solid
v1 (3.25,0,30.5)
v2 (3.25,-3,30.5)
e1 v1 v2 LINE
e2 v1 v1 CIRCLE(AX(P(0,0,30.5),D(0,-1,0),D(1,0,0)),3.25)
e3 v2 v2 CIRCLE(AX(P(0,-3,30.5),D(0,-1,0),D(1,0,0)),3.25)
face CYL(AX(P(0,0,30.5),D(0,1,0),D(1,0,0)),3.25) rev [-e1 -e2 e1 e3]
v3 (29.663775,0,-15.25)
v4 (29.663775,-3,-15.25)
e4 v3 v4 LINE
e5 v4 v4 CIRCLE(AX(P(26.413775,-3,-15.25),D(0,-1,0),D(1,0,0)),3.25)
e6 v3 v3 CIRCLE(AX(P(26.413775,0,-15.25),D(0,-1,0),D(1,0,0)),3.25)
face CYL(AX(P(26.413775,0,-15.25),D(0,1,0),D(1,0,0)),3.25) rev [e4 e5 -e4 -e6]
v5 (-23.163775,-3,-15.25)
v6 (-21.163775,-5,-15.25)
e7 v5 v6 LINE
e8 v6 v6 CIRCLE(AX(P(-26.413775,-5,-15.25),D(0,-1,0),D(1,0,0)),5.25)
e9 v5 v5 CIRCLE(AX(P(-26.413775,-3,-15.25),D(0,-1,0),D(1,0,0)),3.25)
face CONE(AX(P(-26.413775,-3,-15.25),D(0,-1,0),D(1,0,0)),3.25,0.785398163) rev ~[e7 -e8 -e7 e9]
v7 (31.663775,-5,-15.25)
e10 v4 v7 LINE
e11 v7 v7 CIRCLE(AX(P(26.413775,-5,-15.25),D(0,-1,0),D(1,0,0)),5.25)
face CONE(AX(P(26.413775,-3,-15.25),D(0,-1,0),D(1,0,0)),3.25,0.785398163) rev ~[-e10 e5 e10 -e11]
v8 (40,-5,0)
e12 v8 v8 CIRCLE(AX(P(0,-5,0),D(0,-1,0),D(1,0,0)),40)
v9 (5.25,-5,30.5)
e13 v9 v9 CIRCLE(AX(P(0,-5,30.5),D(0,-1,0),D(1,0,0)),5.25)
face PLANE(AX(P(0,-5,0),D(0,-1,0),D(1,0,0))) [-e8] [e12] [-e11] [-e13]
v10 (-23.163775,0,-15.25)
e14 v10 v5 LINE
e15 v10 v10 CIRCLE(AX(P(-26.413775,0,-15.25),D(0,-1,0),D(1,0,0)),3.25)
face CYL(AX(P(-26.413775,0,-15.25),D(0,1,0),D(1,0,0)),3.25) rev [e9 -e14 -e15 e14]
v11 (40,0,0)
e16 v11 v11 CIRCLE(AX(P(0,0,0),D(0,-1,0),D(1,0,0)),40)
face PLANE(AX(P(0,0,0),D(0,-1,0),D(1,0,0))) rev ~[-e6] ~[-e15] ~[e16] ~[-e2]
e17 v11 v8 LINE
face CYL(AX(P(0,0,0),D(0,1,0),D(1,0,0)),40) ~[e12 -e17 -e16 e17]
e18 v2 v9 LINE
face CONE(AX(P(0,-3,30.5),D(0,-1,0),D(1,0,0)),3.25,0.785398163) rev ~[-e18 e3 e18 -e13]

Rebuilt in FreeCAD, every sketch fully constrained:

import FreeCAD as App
import Part
import Sketcher


def edges_at(feature, points):
    """Names of the edges that pass closest to the given points."""
    edges = feature.Shape.Edges
    near = lambda p: min(range(len(edges)), key=lambda i: edges[i].distToShape(Part.Vertex(*p))[0])
    return sorted({f"Edge{near(p) + 1}" for p in points})

doc = App.newDocument("Part")
body = doc.addObject("PartDesign::Body", "Body")

# Sketch on XZ plane
sketch1 = doc.addObject("Sketcher::SketchObject", "Sketch")
body.addObject(sketch1)
sketch1.AttachmentSupport = (doc.XZ_Plane, [""])
sketch1.MapMode = "FlatFace"
sketch1.addGeometry(Part.Circle(App.Vector(0, 0, 0), App.Vector(0, 0, 1), 40), False)
sketch1.addGeometry(Part.Circle(App.Vector(-26.4, -15.2, 0), App.Vector(0, 0, 1), 3.2), False)
sketch1.addGeometry(Part.Circle(App.Vector(26.4, -15.2, 0), App.Vector(0, 0, 1), 3.2), False)
sketch1.addGeometry(Part.Circle(App.Vector(0, 30.5, 0), App.Vector(0, 0, 1), 3.2), False)
sketch1.addConstraint(Sketcher.Constraint("Coincident", 0, 3, -1, 1))
sketch1.addConstraint(Sketcher.Constraint("Equal", 1, 2))
sketch1.addConstraint(Sketcher.Constraint("Equal", 2, 3))
sketch1.addConstraint(Sketcher.Constraint("Symmetric", 1, 3, 2, 3, -2))
sketch1.addConstraint(Sketcher.Constraint("PointOnObject", 3, 3, -2))
sketch1.addConstraint(Sketcher.Constraint("Diameter", 0, 80.0))
sketch1.addConstraint(Sketcher.Constraint("Diameter", 1, 6.5))
sketch1.addConstraint(Sketcher.Constraint("DistanceY", -1, 1, 3, 3, 30.5))
sketch1.addConstraint(Sketcher.Constraint("DistanceY", 1, 3, -1, 1, 15.25))
sketch1.addConstraint(Sketcher.Constraint("DistanceX", 1, 3, 2, 3, 52.82755))
pad1 = doc.addObject("PartDesign::Pad", "Pad")
body.addObject(pad1)
pad1.Profile = sketch1
pad1.Length = 5
doc.recompute()

chamfer = doc.addObject("PartDesign::Chamfer", "Chamfer")
body.addObject(chamfer)
chamfer.Base = (pad1, edges_at(pad1, [(-3.25, -5, 30.5), (23.164, -5, -15.25), (-29.664, -5, -15.25)]))
chamfer.Size = 2

doc.recompute()
